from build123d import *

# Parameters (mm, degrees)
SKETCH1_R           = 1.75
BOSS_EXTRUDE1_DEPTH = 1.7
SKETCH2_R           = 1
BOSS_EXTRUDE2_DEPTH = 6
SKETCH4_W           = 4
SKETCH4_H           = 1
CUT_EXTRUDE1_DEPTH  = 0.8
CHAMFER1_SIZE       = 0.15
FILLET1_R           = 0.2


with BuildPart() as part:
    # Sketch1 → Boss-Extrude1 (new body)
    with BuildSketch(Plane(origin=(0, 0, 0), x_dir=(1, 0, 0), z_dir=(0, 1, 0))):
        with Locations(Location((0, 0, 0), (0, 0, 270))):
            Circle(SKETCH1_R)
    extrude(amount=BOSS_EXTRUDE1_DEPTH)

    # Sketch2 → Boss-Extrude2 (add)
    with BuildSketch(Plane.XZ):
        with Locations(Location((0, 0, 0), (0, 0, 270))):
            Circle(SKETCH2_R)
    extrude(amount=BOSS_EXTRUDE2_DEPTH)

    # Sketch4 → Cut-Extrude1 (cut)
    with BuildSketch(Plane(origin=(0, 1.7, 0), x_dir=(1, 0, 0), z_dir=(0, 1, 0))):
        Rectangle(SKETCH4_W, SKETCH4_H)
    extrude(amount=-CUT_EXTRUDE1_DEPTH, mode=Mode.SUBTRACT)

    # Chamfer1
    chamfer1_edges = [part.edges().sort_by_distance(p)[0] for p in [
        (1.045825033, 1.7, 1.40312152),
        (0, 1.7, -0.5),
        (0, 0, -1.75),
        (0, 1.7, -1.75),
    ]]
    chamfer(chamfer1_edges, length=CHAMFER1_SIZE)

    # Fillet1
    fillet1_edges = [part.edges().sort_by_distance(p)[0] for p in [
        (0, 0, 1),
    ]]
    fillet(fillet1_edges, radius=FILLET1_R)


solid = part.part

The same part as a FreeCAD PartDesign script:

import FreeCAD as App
import Part
import Sketcher
from FreeCAD import Vector


def edges_at(feature, points):
    """Names of the edges that pass closest to the given points."""
    edges = feature.Shape.Edges
    near = lambda p: min(range(len(edges)), key=lambda i: edges[i].distToShape(Part.Vertex(*p))[0])
    return sorted({f"Edge{near(p) + 1}" for p in points})


def add_polygon(sketch, points):
    """Adds a closed chain of lines whose ends are joined by coincident constraints."""
    first, n = sketch.GeometryCount, len(points)
    for a, b in zip(points, points[1:] + points[:1]):
        sketch.addGeometry(Part.LineSegment(App.Vector(*a, 0), App.Vector(*b, 0)), False)
    for i in range(n):
        sketch.addConstraint(Sketcher.Constraint("Coincident", first + i, 2, first + (i + 1) % n, 1))

doc = App.newDocument("Part")
params = doc.addObject("Spreadsheet::Sheet", "Params")
for row, (alias, value) in enumerate([
    ("sketch1_diameter", "3.5 mm"),
    ("pad1_length", "1.7 mm"),
    ("sketch2_diameter", "2 mm"),
    ("pad2_length", "6 mm"),
    ("sketch3_width", "4 mm"),
    ("sketch3_height", "1 mm"),
    ("pocket1_length", "0.8 mm"),
    ("chamfer_size", "0.15 mm"),
    ("fillet_radius", "0.2 mm"),
], start=1):
    params.set(f"A{row}", alias)
    params.set(f"B{row}", "=" + value)
    params.setAlias(f"B{row}", alias)

body = doc.addObject("PartDesign::Body", "Body")

sketch1 = body.newObject("Sketcher::SketchObject", "Sketch")
sketch1.AttachmentSupport = (doc.getObject("XZ_Plane"), [""])
sketch1.MapMode = "FlatFace"
sketch1.addGeometry(Part.Circle(Vector(0, 0, 0), Vector(0, 0, 1), 1.8), False)
sketch1.addConstraint([
    Sketcher.Constraint("Coincident", 0, 3, -1, 1),
    Sketcher.Constraint("Diameter", 0, 3.5),
])
sketch1.setExpression("Constraints[1]", "Params.sketch1_diameter")
pad1 = body.newObject("PartDesign::Pad", "Pad")
pad1.Profile = sketch1
pad1.setExpression("Length", "Params.pad1_length")
pad1.Reversed = True

sketch2 = body.newObject("Sketcher::SketchObject", "Sketch001")
sketch2.AttachmentSupport = (doc.getObject("XZ_Plane"), [""])
sketch2.MapMode = "FlatFace"
sketch2.addGeometry(Part.Circle(Vector(0, 0, 0), Vector(0, 0, 1), 1), False)
sketch2.addConstraint([
    Sketcher.Constraint("Coincident", 0, 3, -1, 1),
    Sketcher.Constraint("Diameter", 0, 2.0),
])
sketch2.setExpression("Constraints[1]", "Params.sketch2_diameter")
pad2 = body.newObject("PartDesign::Pad", "Pad001")
pad2.Profile = sketch2
pad2.setExpression("Length", "Params.pad2_length")

sketch3 = body.newObject("Sketcher::SketchObject", "Sketch002")
sketch3.AttachmentSupport = (doc.getObject("XZ_Plane"), [""])
sketch3.MapMode = "FlatFace"
sketch3.AttachmentOffset = App.Placement(Vector(0, 0, -1.7), App.Rotation())
add_polygon(sketch3, [(-2, -0.5), (-2, 0.5), (2, 0.5), (2, -0.5)])
sketch3.addConstraint([
    Sketcher.Constraint("Vertical", 0),
    Sketcher.Constraint("Horizontal", 1),
    Sketcher.Constraint("Vertical", 2),
    Sketcher.Constraint("Horizontal", 3),
    Sketcher.Constraint("Symmetric", 0, 2, 2, 2, -1, 1),
    Sketcher.Constraint("DistanceX", 1, 1, 1, 2, 4.0),
    Sketcher.Constraint("DistanceY", 0, 1, 0, 2, 1.0),
])
sketch3.setExpression("Constraints[9]", "Params.sketch3_width")
sketch3.setExpression("Constraints[10]", "Params.sketch3_height")
pocket1 = body.newObject("PartDesign::Pocket", "Pocket")
pocket1.Profile = sketch3
pocket1.setExpression("Length", "Params.pocket1_length")
pocket1.Reversed = True
doc.recompute()

chamfer = body.newObject("PartDesign::Chamfer", "Chamfer")
chamfer.Base = (pocket1, edges_at(pocket1, [
    (1.046, 1.7, 1.403),
    (0, 1.7, -0.5),
    (0, 0, -1.75),
    (0, 1.7, -1.75),
]))
chamfer.setExpression("Size", "Params.chamfer_size")
doc.recompute()

fillet = body.newObject("PartDesign::Fillet", "Fillet")
fillet.Base = (chamfer, edges_at(chamfer, [(0, 0, 1)]))
fillet.setExpression("Radius", "Params.fillet_radius")

doc.recompute()
